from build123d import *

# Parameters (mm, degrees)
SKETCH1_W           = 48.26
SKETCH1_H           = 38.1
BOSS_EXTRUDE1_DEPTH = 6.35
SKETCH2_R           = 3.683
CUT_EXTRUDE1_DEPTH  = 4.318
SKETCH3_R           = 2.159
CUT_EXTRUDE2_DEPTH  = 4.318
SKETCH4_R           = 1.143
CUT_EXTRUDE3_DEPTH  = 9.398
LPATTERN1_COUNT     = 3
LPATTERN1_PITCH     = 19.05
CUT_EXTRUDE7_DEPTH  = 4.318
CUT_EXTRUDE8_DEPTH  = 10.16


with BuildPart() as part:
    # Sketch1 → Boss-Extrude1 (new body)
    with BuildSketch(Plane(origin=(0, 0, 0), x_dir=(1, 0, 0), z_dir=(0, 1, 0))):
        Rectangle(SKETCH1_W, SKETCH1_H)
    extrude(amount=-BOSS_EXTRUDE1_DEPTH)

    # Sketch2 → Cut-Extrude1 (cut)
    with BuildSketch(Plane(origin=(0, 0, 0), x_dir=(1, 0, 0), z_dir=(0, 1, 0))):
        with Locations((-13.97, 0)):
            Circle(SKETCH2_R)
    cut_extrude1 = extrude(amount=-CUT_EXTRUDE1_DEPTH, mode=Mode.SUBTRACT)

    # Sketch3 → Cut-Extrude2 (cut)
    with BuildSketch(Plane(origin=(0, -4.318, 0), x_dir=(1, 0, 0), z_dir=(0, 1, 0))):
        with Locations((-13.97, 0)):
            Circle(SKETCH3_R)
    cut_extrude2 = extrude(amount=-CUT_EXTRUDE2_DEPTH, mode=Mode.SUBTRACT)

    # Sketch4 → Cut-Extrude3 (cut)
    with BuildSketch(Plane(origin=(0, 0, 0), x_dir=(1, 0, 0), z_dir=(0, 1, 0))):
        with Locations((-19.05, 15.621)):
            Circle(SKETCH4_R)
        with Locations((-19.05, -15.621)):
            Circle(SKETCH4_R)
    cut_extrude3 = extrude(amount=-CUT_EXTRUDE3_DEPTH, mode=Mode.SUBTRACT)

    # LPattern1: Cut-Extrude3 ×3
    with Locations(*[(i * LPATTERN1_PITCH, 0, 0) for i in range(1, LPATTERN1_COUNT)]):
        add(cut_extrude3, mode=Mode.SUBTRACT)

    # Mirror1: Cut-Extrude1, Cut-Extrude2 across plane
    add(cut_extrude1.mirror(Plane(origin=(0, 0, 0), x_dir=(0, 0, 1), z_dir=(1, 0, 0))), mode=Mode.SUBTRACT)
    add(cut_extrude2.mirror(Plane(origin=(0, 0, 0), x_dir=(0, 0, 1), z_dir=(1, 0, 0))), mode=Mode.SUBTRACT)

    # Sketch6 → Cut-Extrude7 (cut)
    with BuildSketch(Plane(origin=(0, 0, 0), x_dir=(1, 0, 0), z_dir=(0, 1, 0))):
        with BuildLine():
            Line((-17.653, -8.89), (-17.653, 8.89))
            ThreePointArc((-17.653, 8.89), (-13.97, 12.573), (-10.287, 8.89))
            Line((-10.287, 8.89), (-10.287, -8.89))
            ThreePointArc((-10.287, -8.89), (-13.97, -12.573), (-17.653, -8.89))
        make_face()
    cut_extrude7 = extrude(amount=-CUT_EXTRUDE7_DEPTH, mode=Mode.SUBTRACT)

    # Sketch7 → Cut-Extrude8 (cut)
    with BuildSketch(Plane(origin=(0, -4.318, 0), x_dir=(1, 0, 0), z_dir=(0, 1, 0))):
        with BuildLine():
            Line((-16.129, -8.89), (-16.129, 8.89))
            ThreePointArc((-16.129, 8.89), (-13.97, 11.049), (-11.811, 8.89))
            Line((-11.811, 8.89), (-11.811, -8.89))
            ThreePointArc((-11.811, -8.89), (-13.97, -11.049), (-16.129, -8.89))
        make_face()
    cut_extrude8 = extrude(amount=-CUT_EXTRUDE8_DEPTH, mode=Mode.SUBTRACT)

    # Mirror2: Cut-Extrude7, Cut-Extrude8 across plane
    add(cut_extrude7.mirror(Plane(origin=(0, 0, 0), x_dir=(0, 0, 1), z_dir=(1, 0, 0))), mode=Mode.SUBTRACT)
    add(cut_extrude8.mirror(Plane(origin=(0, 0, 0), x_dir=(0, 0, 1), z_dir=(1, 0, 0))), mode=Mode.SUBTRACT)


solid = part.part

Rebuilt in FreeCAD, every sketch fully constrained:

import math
import FreeCAD as App
import Part
import Sketcher
Q = App.Units.Quantity

doc = App.newDocument("Part")
params = doc.addObject("Spreadsheet::Sheet", "Params")
for row, (alias, value) in enumerate([
    ("sketch1_width", "1.9 in"),
    ("sketch1_height", "1.5 in"),
    ("pad1_length", "0.25 in"),
    ("sketch2_diameter", "0.29 in"),
    ("pocket1_length", "0.17 in"),
    ("sketch3_diameter", "0.17 in"),
    ("pocket2_length", "0.17 in"),
    ("sketch4_diameter", "0.09 in"),
    ("pocket3_length", "0.37 in"),
    ("linearpattern_pitch", "0.75 in"),
    ("sketch5_height", "0.7 in"),
    ("sketch5_radius", "0.145 in"),
    ("pocket4_length", "0.17 in"),
    ("sketch6_height", "0.7 in"),
    ("sketch6_radius", "0.085 in"),
    ("pocket5_length", "0.4 in"),
], start=1):
    params.set(f"A{row}", alias)
    params.set(f"B{row}", "=" + value)
    params.setAlias(f"B{row}", alias)

body = doc.addObject("PartDesign::Body", "Body")

# Sketch on XZ plane
sketch1 = body.newObject("Sketcher::SketchObject", "Sketch")
sketch1.AttachmentSupport = (doc.getObject("XZ_Plane"), [""])
sketch1.MapMode = "FlatFace"
sketch1.addGeometry([
    Part.LineSegment(App.Vector(-24, -19, 0), App.Vector(-24, 19, 0)),
    Part.LineSegment(App.Vector(-24, 19, 0), App.Vector(24, 19, 0)),
    Part.LineSegment(App.Vector(24, 19, 0), App.Vector(24, -19, 0)),
    Part.LineSegment(App.Vector(24, -19, 0), App.Vector(-24, -19, 0)),
], False)
sketch1.addConstraint([
    Sketcher.Constraint("Coincident", 0, 2, 1, 1),
    Sketcher.Constraint("Coincident", 1, 2, 2, 1),
    Sketcher.Constraint("Coincident", 2, 2, 3, 1),
    Sketcher.Constraint("Coincident", 3, 2, 0, 1),
    Sketcher.Constraint("Vertical", 0),
    Sketcher.Constraint("Horizontal", 1),
    Sketcher.Constraint("Vertical", 2),
    Sketcher.Constraint("Horizontal", 3),
    Sketcher.Constraint("Symmetric", 0, 2, 2, 2, -1, 1),
    Sketcher.Constraint("DistanceX", 1, 1, 1, 2, Q("1.9 in")),
    Sketcher.Constraint("DistanceY", 0, 1, 0, 2, Q("1.5 in")),
])
sketch1.setExpression("Constraints[9]", "Params.sketch1_width")
sketch1.setExpression("Constraints[10]", "Params.sketch1_height")
pad1 = body.newObject("PartDesign::Pad", "Pad")
pad1.Profile = sketch1
pad1.setExpression("Length", "Params.pad1_length")

# Sketch on XZ plane
sketch2 = body.newObject("Sketcher::SketchObject", "Sketch001")
sketch2.AttachmentSupport = (doc.getObject("XZ_Plane"), [""])
sketch2.MapMode = "FlatFace"
sketch2.addGeometry(Part.Circle(App.Vector(-14, 0, 0), App.Vector(0, 0, 1), 3.7), False)
sketch2.addConstraint([
    Sketcher.Constraint("PointOnObject", 0, 3, -1),
    Sketcher.Constraint("Diameter", 0, Q("0.29 in")),
    Sketcher.Constraint("DistanceX", 0, 3, -1, 1, Q("0.55 in")),
])
sketch2.setExpression("Constraints[1]", "Params.sketch2_diameter")
pocket1 = body.newObject("PartDesign::Pocket", "Pocket")
pocket1.Profile = sketch2
pocket1.setExpression("Length", "Params.pocket1_length")
pocket1.Reversed = True

# Sketch on XZ plane
sketch3 = body.newObject("Sketcher::SketchObject", "Sketch002")
sketch3.AttachmentSupport = (doc.getObject("XZ_Plane"), [""])
sketch3.MapMode = "FlatFace"
sketch3.AttachmentOffset = App.Placement(App.Vector(0, 0, 0.17 * 25.4), App.Rotation())
sketch3.addGeometry(Part.Circle(App.Vector(-14, 0, 0), App.Vector(0, 0, 1), 2.2), False)
sketch3.addConstraint([
    Sketcher.Constraint("PointOnObject", 0, 3, -1),
    Sketcher.Constraint("Diameter", 0, Q("0.17 in")),
    Sketcher.Constraint("DistanceX", 0, 3, -1, 1, Q("0.55 in")),
])
sketch3.setExpression("Constraints[1]", "Params.sketch3_diameter")
pocket2 = body.newObject("PartDesign::Pocket", "Pocket001")
pocket2.Profile = sketch3
pocket2.setExpression("Length", "Params.pocket2_length")
pocket2.Reversed = True

# Sketch on XZ plane
sketch4 = body.newObject("Sketcher::SketchObject", "Sketch003")
sketch4.AttachmentSupport = (doc.getObject("XZ_Plane"), [""])
sketch4.MapMode = "FlatFace"
sketch4.addGeometry([
    Part.Circle(App.Vector(-19.1, -15.6, 0), App.Vector(0, 0, 1), 1.1),
    Part.Circle(App.Vector(-19.1, 15.6, 0), App.Vector(0, 0, 1), 1.1),
], False)
sketch4.addConstraint([
    Sketcher.Constraint("Equal", 0, 1),
    Sketcher.Constraint("Symmetric", 0, 3, 1, 3, -1),
    Sketcher.Constraint("Diameter", 0, Q("0.09 in")),
    Sketcher.Constraint("DistanceX", 0, 3, -1, 1, Q("0.75 in")),
    Sketcher.Constraint("DistanceY", 0, 3, 1, 3, Q("1.23 in")),
])
sketch4.setExpression("Constraints[2]", "Params.sketch4_diameter")
pocket3 = body.newObject("PartDesign::Pocket", "Pocket002")
pocket3.Profile = sketch4
pocket3.setExpression("Length", "Params.pocket3_length")
pocket3.Reversed = True
doc.recompute()

linearpattern = body.newObject("PartDesign::LinearPattern", "LinearPattern")
linearpattern.Originals = [pocket3]
linearpattern.Direction = (doc.getObject("X_Axis"), [""])
linearpattern.Mode = "offset"
linearpattern.setExpression("Offset", "Params.linearpattern_pitch")
linearpattern.Occurrences = 3
body.Tip = linearpattern
doc.recompute()

mirrored = body.newObject("PartDesign::Mirrored", "Mirrored")
mirrored.Originals = [pocket1, pocket2]
mirrored.MirrorPlane = (doc.getObject("YZ_Plane"), [""])
body.Tip = mirrored

# Sketch on XZ plane
sketch5 = body.newObject("Sketcher::SketchObject", "Sketch004")
sketch5.AttachmentSupport = (doc.getObject("XZ_Plane"), [""])
sketch5.MapMode = "FlatFace"
sketch5.addGeometry([
    Part.LineSegment(App.Vector(-17.7, -8.9, 0), App.Vector(-17.7, 8.9, 0)),
    Part.ArcOfCircle(Part.Circle(App.Vector(-14, 8.9, 0), App.Vector(0, 0, 1), 3.7), math.radians(0), math.radians(180)),
    Part.LineSegment(App.Vector(-10.3, 8.9, 0), App.Vector(-10.3, -8.9, 0)),
    Part.ArcOfCircle(Part.Circle(App.Vector(-14, -8.9, 0), App.Vector(0, 0, 1), 3.7), math.radians(180), math.radians(360)),
], False)
sketch5.addConstraint([
    Sketcher.Constraint("Tangent", 0, 2, 1, 2),
    Sketcher.Constraint("Tangent", 1, 1, 2, 1),
    Sketcher.Constraint("Tangent", 2, 2, 3, 2),
    Sketcher.Constraint("Tangent", 3, 1, 0, 1),
    Sketcher.Constraint("Vertical", 0),
    Sketcher.Constraint("Vertical", 2),
    Sketcher.Constraint("DistanceY", 0, 1, 0, 2, Q("0.7 in")),
    Sketcher.Constraint("Radius", 1, Q("0.145 in")),
    Sketcher.Constraint("DistanceX", 1, 3, -1, 1, Q("0.55 in")),
    Sketcher.Constraint("DistanceY", -1, 1, 1, 3, Q("0.35 in")),
])
sketch5.setExpression("Constraints[6]", "Params.sketch5_height")
sketch5.setExpression("Constraints[7]", "Params.sketch5_radius")
pocket4 = body.newObject("PartDesign::Pocket", "Pocket003")
pocket4.Profile = sketch5
pocket4.setExpression("Length", "Params.pocket4_length")
pocket4.Reversed = True

# Sketch on XZ plane
sketch6 = body.newObject("Sketcher::SketchObject", "Sketch005")
sketch6.AttachmentSupport = (doc.getObject("XZ_Plane"), [""])
sketch6.MapMode = "FlatFace"
sketch6.AttachmentOffset = App.Placement(App.Vector(0, 0, 0.17 * 25.4), App.Rotation())
sketch6.addGeometry([
    Part.LineSegment(App.Vector(-16.1, -8.9, 0), App.Vector(-16.1, 8.9, 0)),
    Part.ArcOfCircle(Part.Circle(App.Vector(-14, 8.9, 0), App.Vector(0, 0, 1), 2.2), math.radians(0), math.radians(180)),
    Part.LineSegment(App.Vector(-11.8, 8.9, 0), App.Vector(-11.8, -8.9, 0)),
    Part.ArcOfCircle(Part.Circle(App.Vector(-14, -8.9, 0), App.Vector(0, 0, 1), 2.2), math.radians(180), math.radians(360)),
], False)
sketch6.addConstraint([
    Sketcher.Constraint("Tangent", 0, 2, 1, 2),
    Sketcher.Constraint("Tangent", 1, 1, 2, 1),
    Sketcher.Constraint("Tangent", 2, 2, 3, 2),
    Sketcher.Constraint("Tangent", 3, 1, 0, 1),
    Sketcher.Constraint("Vertical", 0),
    Sketcher.Constraint("Vertical", 2),
    Sketcher.Constraint("DistanceY", 0, 1, 0, 2, Q("0.7 in")),
    Sketcher.Constraint("Radius", 1, Q("0.085 in")),
    Sketcher.Constraint("DistanceX", 1, 3, -1, 1, Q("0.55 in")),
    Sketcher.Constraint("DistanceY", -1, 1, 1, 3, Q("0.35 in")),
])
sketch6.setExpression("Constraints[6]", "Params.sketch6_height")
sketch6.setExpression("Constraints[7]", "Params.sketch6_radius")
pocket5 = body.newObject("PartDesign::Pocket", "Pocket004")
pocket5.Profile = sketch6
pocket5.setExpression("Length", "Params.pocket5_length")
pocket5.Reversed = True
doc.recompute()

mirrored2 = body.newObject("PartDesign::Mirrored", "Mirrored001")
mirrored2.Originals = [pocket4, pocket5]
mirrored2.MirrorPlane = (doc.getObject("YZ_Plane"), [""])
body.Tip = mirrored2

doc.recompute()
